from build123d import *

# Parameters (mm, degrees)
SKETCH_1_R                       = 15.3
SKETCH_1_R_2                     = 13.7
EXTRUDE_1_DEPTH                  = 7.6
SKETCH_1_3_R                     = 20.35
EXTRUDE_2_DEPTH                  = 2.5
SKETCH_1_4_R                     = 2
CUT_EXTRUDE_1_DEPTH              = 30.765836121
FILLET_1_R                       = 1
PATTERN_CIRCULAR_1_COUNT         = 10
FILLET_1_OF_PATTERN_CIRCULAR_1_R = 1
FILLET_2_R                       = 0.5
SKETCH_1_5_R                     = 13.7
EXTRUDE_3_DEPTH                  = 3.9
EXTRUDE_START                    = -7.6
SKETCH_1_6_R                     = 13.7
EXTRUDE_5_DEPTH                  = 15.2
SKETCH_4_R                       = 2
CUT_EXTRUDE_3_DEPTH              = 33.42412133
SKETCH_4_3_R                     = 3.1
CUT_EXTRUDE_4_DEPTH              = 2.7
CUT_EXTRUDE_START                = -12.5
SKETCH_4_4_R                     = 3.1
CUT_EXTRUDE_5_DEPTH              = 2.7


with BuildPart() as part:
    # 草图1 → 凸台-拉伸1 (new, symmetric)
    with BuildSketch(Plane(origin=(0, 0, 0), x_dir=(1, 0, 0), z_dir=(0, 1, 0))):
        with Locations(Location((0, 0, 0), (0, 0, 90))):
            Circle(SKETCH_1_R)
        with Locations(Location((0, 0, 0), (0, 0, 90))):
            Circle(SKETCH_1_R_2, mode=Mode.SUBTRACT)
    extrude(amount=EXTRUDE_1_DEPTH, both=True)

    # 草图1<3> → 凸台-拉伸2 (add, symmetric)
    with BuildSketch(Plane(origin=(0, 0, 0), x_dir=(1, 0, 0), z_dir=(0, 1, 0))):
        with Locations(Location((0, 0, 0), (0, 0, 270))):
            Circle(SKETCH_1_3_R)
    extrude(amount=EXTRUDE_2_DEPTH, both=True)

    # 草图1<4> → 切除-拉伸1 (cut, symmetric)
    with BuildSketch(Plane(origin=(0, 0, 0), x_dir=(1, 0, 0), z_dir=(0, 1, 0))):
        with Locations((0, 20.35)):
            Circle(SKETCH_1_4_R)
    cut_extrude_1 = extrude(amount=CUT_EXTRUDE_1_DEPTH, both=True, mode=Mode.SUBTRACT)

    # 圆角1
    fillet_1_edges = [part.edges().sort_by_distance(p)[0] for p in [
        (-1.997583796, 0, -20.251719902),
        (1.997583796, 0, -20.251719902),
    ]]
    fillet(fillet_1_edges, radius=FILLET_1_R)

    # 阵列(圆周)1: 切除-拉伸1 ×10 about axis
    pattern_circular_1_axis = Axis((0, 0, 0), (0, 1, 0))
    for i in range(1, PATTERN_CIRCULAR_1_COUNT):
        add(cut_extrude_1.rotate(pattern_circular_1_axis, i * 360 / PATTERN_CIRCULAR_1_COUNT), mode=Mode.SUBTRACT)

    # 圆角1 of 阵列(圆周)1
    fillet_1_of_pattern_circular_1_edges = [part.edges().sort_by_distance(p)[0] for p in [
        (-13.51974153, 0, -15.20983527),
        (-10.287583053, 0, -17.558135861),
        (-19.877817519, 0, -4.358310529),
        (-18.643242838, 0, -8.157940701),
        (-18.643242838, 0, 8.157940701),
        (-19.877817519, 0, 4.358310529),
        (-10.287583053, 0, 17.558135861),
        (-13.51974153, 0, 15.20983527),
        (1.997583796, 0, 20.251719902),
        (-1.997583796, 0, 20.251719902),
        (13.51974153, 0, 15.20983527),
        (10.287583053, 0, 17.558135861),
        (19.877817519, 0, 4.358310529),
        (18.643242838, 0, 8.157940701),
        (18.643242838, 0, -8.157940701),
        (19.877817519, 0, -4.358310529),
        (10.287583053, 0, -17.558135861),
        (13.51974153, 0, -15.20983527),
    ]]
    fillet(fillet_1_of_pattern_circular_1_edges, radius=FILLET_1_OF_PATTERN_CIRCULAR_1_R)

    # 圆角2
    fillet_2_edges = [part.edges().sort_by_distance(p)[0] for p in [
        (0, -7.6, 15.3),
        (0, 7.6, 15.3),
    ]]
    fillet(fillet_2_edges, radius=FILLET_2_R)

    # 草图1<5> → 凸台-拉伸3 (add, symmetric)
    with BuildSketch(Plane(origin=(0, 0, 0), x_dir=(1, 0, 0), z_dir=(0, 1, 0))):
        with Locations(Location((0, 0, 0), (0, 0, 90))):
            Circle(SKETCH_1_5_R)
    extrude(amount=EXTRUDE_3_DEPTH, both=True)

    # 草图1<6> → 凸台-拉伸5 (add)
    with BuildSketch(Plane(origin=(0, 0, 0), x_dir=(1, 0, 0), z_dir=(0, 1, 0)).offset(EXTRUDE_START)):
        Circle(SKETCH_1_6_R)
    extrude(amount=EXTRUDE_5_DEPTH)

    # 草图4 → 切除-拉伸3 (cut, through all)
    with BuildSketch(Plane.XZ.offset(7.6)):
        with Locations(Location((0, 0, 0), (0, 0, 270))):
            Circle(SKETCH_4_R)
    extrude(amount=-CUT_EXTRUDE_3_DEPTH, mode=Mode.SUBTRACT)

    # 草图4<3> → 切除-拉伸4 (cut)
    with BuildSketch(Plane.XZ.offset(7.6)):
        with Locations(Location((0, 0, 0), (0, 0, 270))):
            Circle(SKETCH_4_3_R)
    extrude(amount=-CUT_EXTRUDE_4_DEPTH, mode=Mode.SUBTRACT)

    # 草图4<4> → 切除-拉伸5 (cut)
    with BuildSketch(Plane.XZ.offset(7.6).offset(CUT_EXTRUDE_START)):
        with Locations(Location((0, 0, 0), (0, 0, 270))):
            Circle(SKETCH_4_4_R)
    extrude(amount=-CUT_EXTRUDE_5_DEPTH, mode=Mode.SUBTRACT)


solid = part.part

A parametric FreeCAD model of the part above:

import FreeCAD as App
import Part
import Sketcher
from FreeCAD import Vector
Q = App.Units.Quantity


def edges_at(feature, points):
    """Names of the edges that pass closest to the given points."""
    edges = feature.Shape.Edges
    near = lambda p: min(range(len(edges)), key=lambda i: edges[i].distToShape(Part.Vertex(*p))[0])
    return sorted({f"Edge{near(p) + 1}" for p in points})

doc = App.newDocument("Part")
body = doc.addObject("PartDesign::Body", "Body")

sketch1 = body.newObject("Sketcher::SketchObject", "Sketch")
sketch1.AttachmentSupport = (doc.getObject("XZ_Plane"), [""])
sketch1.MapMode = "FlatFace"
sketch1.addGeometry([
    Part.Circle(Vector(0, 0, 0), Vector(0, 0, 1), 15),
    Part.Circle(Vector(0, 0, 0), Vector(0, 0, 1), 14),
], False)
sketch1.addConstraint([
    Sketcher.Constraint("Coincident", 0, 3, -1, 1),
    Sketcher.Constraint("Coincident", 1, 3, -1, 1),
    Sketcher.Constraint("Diameter", 0, Q("30.6 mm")),
    Sketcher.Constraint("Diameter", 1, Q("27.4 mm")),
])
pad1 = body.newObject("PartDesign::Pad", "Pad")
pad1.Profile = sketch1
pad1.Length = 15.2
pad1.Midplane = True

sketch2 = body.newObject("Sketcher::SketchObject", "Sketch001")
sketch2.AttachmentSupport = (doc.getObject("XZ_Plane"), [""])
sketch2.MapMode = "FlatFace"
sketch2.addGeometry(Part.Circle(Vector(0, 0, 0), Vector(0, 0, 1), 20), False)
sketch2.addConstraint([
    Sketcher.Constraint("Coincident", 0, 3, -1, 1),
    Sketcher.Constraint("Diameter", 0, Q("40.7 mm")),
])
pad2 = body.newObject("PartDesign::Pad", "Pad001")
pad2.Profile = sketch2
pad2.Length = 5
pad2.Midplane = True

sketch3 = body.newObject("Sketcher::SketchObject", "Sketch002")
sketch3.AttachmentSupport = (doc.getObject("XZ_Plane"), [""])
sketch3.MapMode = "FlatFace"
sketch3.addGeometry(Part.Circle(Vector(0, -20.4, 0), Vector(0, 0, 1), 2), False)
sketch3.addConstraint([
    Sketcher.Constraint("PointOnObject", 0, 3, -2),
    Sketcher.Constraint("Diameter", 0, Q("4 mm")),
    Sketcher.Constraint("DistanceY", 0, 3, -1, 1, Q("20.35 mm")),
])
pocket1 = body.newObject("PartDesign::Pocket", "Pocket")
pocket1.Profile = sketch3
pocket1.Length = 61.531672
pocket1.Midplane = True
doc.recompute()

fillet = body.newObject("PartDesign::Fillet", "Fillet")
fillet.Base = (pocket1, edges_at(pocket1, [(-1.998, 0, -20.252), (1.998, 0, -20.252)]))
fillet.Radius = 1
doc.recompute()

polarpattern = body.newObject("PartDesign::PolarPattern", "PolarPattern")
polarpattern.Originals = [pocket1]
polarpattern.Axis = (doc.getObject("Y_Axis"), [""])
polarpattern.Angle = 360
polarpattern.Occurrences = 10
body.Tip = polarpattern
doc.recompute()

fillet2 = body.newObject("PartDesign::Fillet", "Fillet001")
fillet2.Base = (polarpattern, edges_at(polarpattern, [
    (-13.52, 0, -15.21),
    (-10.288, 0, -17.558),
    (-19.878, 0, -4.358),
    (-18.643, 0, -8.158),
    (-18.643, 0, 8.158),
    (-19.878, 0, 4.358),
    (-10.288, 0, 17.558),
    (-13.52, 0, 15.21),
    (1.998, 0, 20.252),
    (-1.998, 0, 20.252),
    (13.52, 0, 15.21),
    (10.288, 0, 17.558),
    (19.878, 0, 4.358),
    (18.643, 0, 8.158),
    (18.643, 0, -8.158),
    (19.878, 0, -4.358),
    (10.288, 0, -17.558),
    (13.52, 0, -15.21),
]))
fillet2.Radius = 1
doc.recompute()

fillet3 = body.newObject("PartDesign::Fillet", "Fillet002")
fillet3.Base = (fillet2, edges_at(fillet2, [(0, -7.6, 15.3), (0, 7.6, 15.3)]))
fillet3.Radius = 0.5

sketch4 = body.newObject("Sketcher::SketchObject", "Sketch003")
sketch4.AttachmentSupport = (doc.getObject("XZ_Plane"), [""])
sketch4.MapMode = "FlatFace"
sketch4.addGeometry(Part.Circle(Vector(0, 0, 0), Vector(0, 0, 1), 14), False)
sketch4.addConstraint([
    Sketcher.Constraint("Coincident", 0, 3, -1, 1),
    Sketcher.Constraint("Diameter", 0, Q("27.4 mm")),
])
pad3 = body.newObject("PartDesign::Pad", "Pad002")
pad3.Profile = sketch4
pad3.Length = 7.8
pad3.Midplane = True

sketch5 = body.newObject("Sketcher::SketchObject", "Sketch004")
sketch5.AttachmentSupport = (doc.getObject("XZ_Plane"), [""])
sketch5.MapMode = "FlatFace"
sketch5.AttachmentOffset = App.Placement(Vector(0, 0, 7.6), App.Rotation())
sketch5.addGeometry(Part.Circle(Vector(0, 0, 0), Vector(0, 0, 1), 14), False)
sketch5.addConstraint([
    Sketcher.Constraint("Coincident", 0, 3, -1, 1),
    Sketcher.Constraint("Diameter", 0, Q("27.4 mm")),
])
pad4 = body.newObject("PartDesign::Pad", "Pad003")
pad4.Profile = sketch5
pad4.Length = 15.2
pad4.Reversed = True

sketch6 = body.newObject("Sketcher::SketchObject", "Sketch005")
sketch6.AttachmentSupport = (doc.getObject("XZ_Plane"), [""])
sketch6.MapMode = "FlatFace"
sketch6.AttachmentOffset = App.Placement(Vector(0, 0, 7.6), App.Rotation())
sketch6.addGeometry(Part.Circle(Vector(0, 0, 0), Vector(0, 0, 1), 2), False)
sketch6.addConstraint([
    Sketcher.Constraint("Coincident", 0, 3, -1, 1),
    Sketcher.Constraint("Diameter", 0, Q("4 mm")),
])
pocket2 = body.newObject("PartDesign::Pocket", "Pocket001")
pocket2.Profile = sketch6
pocket2.Type = "ThroughAll"

sketch7 = body.newObject("Sketcher::SketchObject", "Sketch006")
sketch7.AttachmentSupport = (doc.getObject("XZ_Plane"), [""])
sketch7.MapMode = "FlatFace"
sketch7.AttachmentOffset = App.Placement(Vector(0, 0, 7.6), App.Rotation())
sketch7.addGeometry(Part.Circle(Vector(0, 0, 0), Vector(0, 0, 1), 3.1), False)
sketch7.addConstraint([
    Sketcher.Constraint("Coincident", 0, 3, -1, 1),
    Sketcher.Constraint("Diameter", 0, Q("6.2 mm")),
])
pocket3 = body.newObject("PartDesign::Pocket", "Pocket002")
pocket3.Profile = sketch7
pocket3.Length = 2.7

sketch8 = body.newObject("Sketcher::SketchObject", "Sketch007")
sketch8.AttachmentSupport = (doc.getObject("XZ_Plane"), [""])
sketch8.MapMode = "FlatFace"
sketch8.AttachmentOffset = App.Placement(Vector(0, 0, -4.9), App.Rotation())
sketch8.addGeometry(Part.Circle(Vector(0, 0, 0), Vector(0, 0, 1), 3.1), False)
sketch8.addConstraint([
    Sketcher.Constraint("Coincident", 0, 3, -1, 1),
    Sketcher.Constraint("Diameter", 0, Q("6.2 mm")),
])
pocket4 = body.newObject("PartDesign::Pocket", "Pocket003")
pocket4.Profile = sketch8
pocket4.Length = 2.7

doc.recompute()
